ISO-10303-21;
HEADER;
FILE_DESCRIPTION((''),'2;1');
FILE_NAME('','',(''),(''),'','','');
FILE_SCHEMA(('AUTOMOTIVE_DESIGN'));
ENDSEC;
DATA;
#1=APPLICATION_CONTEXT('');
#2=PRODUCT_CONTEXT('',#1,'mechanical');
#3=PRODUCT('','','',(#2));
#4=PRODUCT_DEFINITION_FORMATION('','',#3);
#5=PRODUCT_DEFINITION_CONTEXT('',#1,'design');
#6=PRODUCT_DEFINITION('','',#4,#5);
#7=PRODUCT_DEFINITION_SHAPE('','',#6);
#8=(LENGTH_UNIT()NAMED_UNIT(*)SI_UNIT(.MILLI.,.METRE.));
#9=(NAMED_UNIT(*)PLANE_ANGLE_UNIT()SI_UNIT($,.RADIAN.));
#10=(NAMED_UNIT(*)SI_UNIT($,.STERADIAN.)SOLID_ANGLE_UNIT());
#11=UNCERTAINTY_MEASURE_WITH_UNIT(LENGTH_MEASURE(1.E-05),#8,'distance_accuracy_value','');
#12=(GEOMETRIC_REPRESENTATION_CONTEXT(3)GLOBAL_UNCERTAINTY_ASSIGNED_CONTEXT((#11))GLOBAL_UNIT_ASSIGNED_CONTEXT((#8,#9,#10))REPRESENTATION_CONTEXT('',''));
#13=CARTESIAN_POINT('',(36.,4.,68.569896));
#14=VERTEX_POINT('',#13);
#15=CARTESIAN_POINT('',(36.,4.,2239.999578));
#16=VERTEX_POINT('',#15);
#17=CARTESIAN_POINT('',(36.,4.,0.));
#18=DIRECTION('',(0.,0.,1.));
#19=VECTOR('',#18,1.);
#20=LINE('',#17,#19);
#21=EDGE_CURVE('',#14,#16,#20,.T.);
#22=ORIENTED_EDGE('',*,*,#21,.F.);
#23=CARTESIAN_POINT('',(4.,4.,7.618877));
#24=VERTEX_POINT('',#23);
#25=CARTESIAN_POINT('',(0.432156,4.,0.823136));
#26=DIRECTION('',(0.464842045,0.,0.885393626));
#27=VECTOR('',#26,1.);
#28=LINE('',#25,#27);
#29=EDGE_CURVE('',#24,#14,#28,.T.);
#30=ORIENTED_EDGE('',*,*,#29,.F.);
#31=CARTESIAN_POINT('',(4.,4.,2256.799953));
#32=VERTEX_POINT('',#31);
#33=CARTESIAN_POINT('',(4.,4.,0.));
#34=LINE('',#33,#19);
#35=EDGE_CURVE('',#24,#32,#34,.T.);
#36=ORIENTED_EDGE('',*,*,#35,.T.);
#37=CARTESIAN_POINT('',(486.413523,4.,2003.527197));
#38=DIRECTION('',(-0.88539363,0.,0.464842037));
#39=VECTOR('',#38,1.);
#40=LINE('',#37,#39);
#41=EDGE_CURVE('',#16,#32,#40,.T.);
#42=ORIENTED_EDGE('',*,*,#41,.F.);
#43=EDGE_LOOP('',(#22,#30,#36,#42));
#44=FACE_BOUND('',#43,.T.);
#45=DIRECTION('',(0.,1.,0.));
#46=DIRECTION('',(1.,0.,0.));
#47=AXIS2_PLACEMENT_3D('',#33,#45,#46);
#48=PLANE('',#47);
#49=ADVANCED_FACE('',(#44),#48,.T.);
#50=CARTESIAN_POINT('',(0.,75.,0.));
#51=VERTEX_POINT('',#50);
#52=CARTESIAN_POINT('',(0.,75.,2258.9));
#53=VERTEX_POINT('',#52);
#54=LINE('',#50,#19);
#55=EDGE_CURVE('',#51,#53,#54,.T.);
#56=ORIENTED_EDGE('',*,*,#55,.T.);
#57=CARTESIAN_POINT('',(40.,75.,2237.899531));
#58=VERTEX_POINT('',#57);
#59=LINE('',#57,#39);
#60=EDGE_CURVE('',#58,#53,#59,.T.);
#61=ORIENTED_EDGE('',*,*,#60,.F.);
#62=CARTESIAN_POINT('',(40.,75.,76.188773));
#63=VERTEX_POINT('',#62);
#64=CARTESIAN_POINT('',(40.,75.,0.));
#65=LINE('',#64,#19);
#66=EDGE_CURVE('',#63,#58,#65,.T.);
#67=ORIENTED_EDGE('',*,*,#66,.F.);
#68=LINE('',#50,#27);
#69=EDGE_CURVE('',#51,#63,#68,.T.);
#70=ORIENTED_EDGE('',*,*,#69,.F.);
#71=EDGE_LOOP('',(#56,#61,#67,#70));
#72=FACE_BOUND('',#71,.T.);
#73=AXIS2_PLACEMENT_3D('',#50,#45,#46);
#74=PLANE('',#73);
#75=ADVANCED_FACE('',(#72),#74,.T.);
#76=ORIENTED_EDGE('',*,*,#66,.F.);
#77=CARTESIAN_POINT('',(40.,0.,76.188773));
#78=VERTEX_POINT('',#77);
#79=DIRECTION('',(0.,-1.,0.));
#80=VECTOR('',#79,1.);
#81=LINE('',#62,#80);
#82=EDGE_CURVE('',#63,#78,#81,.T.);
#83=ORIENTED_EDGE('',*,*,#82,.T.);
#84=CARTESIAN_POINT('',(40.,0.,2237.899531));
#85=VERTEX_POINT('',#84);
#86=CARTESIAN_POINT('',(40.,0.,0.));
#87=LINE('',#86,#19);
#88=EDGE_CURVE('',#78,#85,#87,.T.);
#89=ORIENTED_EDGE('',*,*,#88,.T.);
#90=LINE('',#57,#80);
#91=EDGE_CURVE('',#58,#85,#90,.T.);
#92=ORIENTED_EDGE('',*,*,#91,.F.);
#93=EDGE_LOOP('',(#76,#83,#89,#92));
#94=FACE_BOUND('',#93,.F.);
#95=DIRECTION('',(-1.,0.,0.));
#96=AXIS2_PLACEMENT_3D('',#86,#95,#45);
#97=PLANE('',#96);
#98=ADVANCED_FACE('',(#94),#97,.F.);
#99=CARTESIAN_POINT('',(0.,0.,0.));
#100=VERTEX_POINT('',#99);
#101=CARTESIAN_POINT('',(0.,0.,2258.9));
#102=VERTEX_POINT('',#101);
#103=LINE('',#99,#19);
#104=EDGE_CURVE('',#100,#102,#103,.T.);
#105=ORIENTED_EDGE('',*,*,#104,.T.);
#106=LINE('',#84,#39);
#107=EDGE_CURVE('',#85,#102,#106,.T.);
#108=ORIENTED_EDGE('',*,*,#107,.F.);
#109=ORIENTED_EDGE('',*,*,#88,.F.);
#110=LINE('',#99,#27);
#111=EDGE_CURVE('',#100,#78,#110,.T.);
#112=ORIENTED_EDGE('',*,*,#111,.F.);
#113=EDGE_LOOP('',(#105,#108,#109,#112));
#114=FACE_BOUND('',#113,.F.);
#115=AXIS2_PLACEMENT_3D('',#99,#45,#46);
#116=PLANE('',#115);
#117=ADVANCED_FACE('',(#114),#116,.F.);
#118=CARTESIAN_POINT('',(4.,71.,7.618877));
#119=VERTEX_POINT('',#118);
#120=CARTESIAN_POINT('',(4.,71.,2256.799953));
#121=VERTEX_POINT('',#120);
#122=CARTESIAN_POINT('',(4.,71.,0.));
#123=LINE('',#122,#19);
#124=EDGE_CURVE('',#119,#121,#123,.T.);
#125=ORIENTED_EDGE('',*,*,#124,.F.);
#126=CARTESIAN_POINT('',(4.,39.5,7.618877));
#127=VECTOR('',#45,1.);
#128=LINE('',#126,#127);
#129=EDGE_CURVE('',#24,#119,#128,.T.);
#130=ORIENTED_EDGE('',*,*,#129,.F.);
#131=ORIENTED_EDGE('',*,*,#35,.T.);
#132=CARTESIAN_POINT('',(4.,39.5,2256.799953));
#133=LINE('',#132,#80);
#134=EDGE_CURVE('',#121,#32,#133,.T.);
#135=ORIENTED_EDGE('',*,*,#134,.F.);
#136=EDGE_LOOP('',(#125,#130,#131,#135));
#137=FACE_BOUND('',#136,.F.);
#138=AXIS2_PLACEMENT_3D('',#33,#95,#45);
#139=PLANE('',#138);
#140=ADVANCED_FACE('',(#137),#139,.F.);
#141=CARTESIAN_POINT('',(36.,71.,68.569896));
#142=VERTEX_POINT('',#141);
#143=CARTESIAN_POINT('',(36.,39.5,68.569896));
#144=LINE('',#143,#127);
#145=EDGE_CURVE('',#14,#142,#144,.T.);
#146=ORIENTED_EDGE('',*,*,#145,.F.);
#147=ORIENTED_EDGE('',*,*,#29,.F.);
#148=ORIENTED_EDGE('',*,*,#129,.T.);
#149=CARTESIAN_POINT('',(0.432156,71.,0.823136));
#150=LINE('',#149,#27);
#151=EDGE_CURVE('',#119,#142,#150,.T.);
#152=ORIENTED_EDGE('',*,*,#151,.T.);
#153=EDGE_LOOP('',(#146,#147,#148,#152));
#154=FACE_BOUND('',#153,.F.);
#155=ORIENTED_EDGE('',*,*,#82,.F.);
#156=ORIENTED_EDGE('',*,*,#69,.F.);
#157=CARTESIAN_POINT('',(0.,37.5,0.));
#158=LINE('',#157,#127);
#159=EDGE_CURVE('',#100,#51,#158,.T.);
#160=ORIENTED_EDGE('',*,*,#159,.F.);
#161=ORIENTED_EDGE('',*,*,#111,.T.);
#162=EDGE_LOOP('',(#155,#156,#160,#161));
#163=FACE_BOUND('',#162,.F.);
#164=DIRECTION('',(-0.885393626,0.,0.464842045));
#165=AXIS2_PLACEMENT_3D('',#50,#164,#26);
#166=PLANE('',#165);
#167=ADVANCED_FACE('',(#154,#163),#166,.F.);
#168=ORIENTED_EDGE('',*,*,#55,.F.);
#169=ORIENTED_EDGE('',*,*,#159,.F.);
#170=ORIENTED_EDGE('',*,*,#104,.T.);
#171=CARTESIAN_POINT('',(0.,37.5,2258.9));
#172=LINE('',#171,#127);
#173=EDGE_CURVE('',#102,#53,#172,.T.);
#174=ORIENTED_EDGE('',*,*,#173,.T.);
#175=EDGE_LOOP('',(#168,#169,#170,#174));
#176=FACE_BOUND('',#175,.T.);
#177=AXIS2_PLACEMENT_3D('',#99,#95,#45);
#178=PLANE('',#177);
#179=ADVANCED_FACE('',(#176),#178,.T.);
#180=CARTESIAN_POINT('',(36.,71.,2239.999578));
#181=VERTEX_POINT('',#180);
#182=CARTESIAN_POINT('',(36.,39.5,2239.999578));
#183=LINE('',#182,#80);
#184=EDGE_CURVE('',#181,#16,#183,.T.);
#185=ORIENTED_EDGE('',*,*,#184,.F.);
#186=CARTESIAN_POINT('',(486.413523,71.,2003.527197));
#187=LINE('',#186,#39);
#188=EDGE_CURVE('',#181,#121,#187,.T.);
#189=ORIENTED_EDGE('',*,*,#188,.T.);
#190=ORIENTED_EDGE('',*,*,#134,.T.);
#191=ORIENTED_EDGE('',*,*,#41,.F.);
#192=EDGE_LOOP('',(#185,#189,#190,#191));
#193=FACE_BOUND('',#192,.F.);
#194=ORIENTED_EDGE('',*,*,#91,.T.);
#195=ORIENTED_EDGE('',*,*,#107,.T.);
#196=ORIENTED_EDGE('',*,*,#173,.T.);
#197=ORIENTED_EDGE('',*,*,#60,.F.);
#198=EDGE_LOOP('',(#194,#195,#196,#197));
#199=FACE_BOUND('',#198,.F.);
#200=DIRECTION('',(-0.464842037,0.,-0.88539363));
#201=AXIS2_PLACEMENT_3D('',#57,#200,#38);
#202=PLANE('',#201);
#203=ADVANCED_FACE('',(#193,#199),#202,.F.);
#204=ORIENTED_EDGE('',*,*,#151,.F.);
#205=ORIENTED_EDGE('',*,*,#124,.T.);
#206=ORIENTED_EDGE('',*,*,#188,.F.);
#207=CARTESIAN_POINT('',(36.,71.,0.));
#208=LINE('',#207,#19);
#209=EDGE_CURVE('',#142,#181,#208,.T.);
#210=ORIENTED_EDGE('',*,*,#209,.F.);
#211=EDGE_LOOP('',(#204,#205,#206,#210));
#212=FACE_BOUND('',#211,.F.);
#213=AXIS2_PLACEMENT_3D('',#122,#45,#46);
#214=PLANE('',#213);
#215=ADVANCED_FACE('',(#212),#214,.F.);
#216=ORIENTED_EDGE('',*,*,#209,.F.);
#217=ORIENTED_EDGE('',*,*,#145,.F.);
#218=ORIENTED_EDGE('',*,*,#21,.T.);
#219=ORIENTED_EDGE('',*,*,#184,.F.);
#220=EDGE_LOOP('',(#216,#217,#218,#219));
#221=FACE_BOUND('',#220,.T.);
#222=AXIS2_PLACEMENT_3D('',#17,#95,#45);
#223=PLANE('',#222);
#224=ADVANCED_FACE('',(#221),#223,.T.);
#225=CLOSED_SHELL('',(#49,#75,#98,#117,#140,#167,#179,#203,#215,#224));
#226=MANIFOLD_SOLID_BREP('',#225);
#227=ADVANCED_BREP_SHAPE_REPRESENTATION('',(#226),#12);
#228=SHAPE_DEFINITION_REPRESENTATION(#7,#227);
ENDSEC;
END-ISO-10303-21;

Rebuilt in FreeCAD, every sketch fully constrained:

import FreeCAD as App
import Part
import Sketcher
from FreeCAD import Vector
Q = App.Units.Quantity


def add_polygon(sketch, points):
    """Adds a closed chain of lines whose ends are joined by coincident constraints."""
    first, n = sketch.GeometryCount, len(points)
    for a, b in zip(points, points[1:] + points[:1]):
        sketch.addGeometry(Part.LineSegment(App.Vector(*a, 0), App.Vector(*b, 0)), False)
    for i in range(n):
        sketch.addConstraint(Sketcher.Constraint("Coincident", first + i, 2, first + (i + 1) % n, 1))

doc = App.newDocument("Part")
params = doc.addObject("Spreadsheet::Sheet", "Params")
for row, (alias, value) in enumerate([
    ("sketch1_width", "40 mm"),
    ("sketch1_width2", "32 mm"),
    ("sketch1_height", "75 mm"),
    ("sketch1_height2", "67 mm"),
    ("pad1_length", "2258.9 mm"),
    ("sketch2_width", "40 mm"),
    ("sketch3_width", "40 mm"),
], start=1):
    params.set(f"A{row}", alias)
    params.set(f"B{row}", "=" + value)
    params.setAlias(f"B{row}", alias)

body = doc.addObject("PartDesign::Body", "Body")

sketch1 = body.newObject("Sketcher::SketchObject", "Sketch")
sketch1.AttachmentSupport = (doc.getObject("XY_Plane"), [""])
sketch1.MapMode = "FlatFace"
add_polygon(sketch1, [(0, 75), (0, 0), (40, 0), (40, 75)])
add_polygon(sketch1, [(36, 4), (4, 4), (4, 71), (36, 71)])
sketch1.addConstraint([
    Sketcher.Constraint("Vertical", 0),
    Sketcher.Constraint("Horizontal", 1),
    Sketcher.Constraint("Vertical", 2),
    Sketcher.Constraint("Horizontal", 3),
    Sketcher.Constraint("Horizontal", 4),
    Sketcher.Constraint("Vertical", 5),
    Sketcher.Constraint("Horizontal", 6),
    Sketcher.Constraint("Vertical", 7),
    Sketcher.Constraint("Coincident", 0, 2, -1, 1),
    Sketcher.Constraint("DistanceX", 1, 1, 1, 2, 40.0),
    Sketcher.Constraint("DistanceX", 4, 2, 4, 1, 32.0),
    Sketcher.Constraint("DistanceY", 0, 2, 0, 1, 75.0),
    Sketcher.Constraint("DistanceY", 5, 1, 5, 2, 67.0),
    Sketcher.Constraint("DistanceX", -1, 1, 4, 2, 4.0),
    Sketcher.Constraint("DistanceY", -1, 1, 4, 2, 4.0),
])
sketch1.setExpression("Constraints[17]", "Params.sketch1_width")
sketch1.setExpression("Constraints[18]", "Params.sketch1_width2")
sketch1.setExpression("Constraints[19]", "Params.sketch1_height")
sketch1.setExpression("Constraints[20]", "Params.sketch1_height2")
pad1 = body.newObject("PartDesign::Pad", "Pad")
pad1.Profile = sketch1
pad1.setExpression("Length", "Params.pad1_length")

sketch2 = body.newObject("Sketcher::SketchObject", "Sketch001")
sketch2.AttachmentSupport = (doc.getObject("XZ_Plane"), [""])
sketch2.MapMode = "FlatFace"
sketch2.AttachmentOffset = App.Placement(Vector(0, 0, -75), App.Rotation())
add_polygon(sketch2, [(40, 2237.899531), (0, 2258.9), (40, 2258.9)])
sketch2.addConstraint([
    Sketcher.Constraint("Horizontal", 1),
    Sketcher.Constraint("Vertical", 2),
    Sketcher.Constraint("PointOnObject", 0, 2, -2),
    Sketcher.Constraint("DistanceX", 1, 1, 1, 2, 40.0),
    Sketcher.Constraint("Angle", 0, Q("152.300001 deg")),
    Sketcher.Constraint("DistanceY", -1, 1, 0, 2, 2258.9),
])
sketch2.setExpression("Constraints[6]", "Params.sketch2_width")
pocket1 = body.newObject("PartDesign::Pocket", "Pocket")
pocket1.Profile = sketch2
pocket1.Type = "ThroughAll"
pocket1.Reversed = True

sketch3 = body.newObject("Sketcher::SketchObject", "Sketch002")
sketch3.AttachmentSupport = (doc.getObject("XZ_Plane"), [""])
sketch3.MapMode = "FlatFace"
sketch3.AttachmentOffset = App.Placement(Vector(0, 0, -75), App.Rotation())
add_polygon(sketch3, [(40, 0), (0, 0), (40, 76.188773)])
sketch3.addConstraint([
    Sketcher.Constraint("Horizontal", 0),
    Sketcher.Constraint("Vertical", 2),
    Sketcher.Constraint("Coincident", 0, 2, -1, 1),
    Sketcher.Constraint("DistanceX", 0, 2, 0, 1, 40.0),
    Sketcher.Constraint("Angle", 1, Q("62.3 deg")),
])
sketch3.setExpression("Constraints[6]", "Params.sketch3_width")
pocket2 = body.newObject("PartDesign::Pocket", "Pocket001")
pocket2.Profile = sketch3
pocket2.Type = "ThroughAll"
pocket2.Reversed = True

doc.recompute()
